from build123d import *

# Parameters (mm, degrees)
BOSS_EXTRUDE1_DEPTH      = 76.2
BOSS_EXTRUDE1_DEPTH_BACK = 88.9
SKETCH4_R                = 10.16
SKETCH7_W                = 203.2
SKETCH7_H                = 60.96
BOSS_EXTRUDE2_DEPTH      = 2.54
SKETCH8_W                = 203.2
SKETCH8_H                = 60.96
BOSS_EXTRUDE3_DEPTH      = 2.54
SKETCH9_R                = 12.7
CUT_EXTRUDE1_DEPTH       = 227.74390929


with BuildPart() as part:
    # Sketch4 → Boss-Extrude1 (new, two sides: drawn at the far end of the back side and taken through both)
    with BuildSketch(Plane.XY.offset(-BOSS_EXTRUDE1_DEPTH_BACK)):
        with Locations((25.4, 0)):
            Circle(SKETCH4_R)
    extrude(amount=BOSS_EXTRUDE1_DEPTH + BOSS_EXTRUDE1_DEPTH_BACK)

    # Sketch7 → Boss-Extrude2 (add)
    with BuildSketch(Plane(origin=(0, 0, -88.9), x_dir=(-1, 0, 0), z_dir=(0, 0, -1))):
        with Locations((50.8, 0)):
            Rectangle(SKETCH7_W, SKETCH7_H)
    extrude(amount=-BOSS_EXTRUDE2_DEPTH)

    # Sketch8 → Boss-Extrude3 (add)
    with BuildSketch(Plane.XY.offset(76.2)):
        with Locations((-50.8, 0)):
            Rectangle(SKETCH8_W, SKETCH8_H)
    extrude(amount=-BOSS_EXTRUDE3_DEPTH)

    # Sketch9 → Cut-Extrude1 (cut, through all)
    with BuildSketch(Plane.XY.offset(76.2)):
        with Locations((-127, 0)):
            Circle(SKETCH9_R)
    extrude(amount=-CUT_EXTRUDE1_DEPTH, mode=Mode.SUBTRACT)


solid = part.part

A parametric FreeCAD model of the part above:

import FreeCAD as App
import Part
import Sketcher
from FreeCAD import Vector
Q = App.Units.Quantity


def add_polygon(sketch, points):
    """Adds a closed chain of lines whose ends are joined by coincident constraints."""
    first, n = sketch.GeometryCount, len(points)
    for a, b in zip(points, points[1:] + points[:1]):
        sketch.addGeometry(Part.LineSegment(App.Vector(*a, 0), App.Vector(*b, 0)), False)
    for i in range(n):
        sketch.addConstraint(Sketcher.Constraint("Coincident", first + i, 2, first + (i + 1) % n, 1))

doc = App.newDocument("Part")
params = doc.addObject("Spreadsheet::Sheet", "Params")
for row, (alias, value) in enumerate([
    ("sketch1_diameter", "0.8 in"),
    ("pad1_length", "3 in"),
    ("pad1_length2", "3.5 in"),
    ("sketch2_width", "8 in"),
    ("sketch2_height", "2.4 in"),
    ("pad2_length", "0.1 in"),
    ("sketch3_width", "8 in"),
    ("sketch3_height", "2.4 in"),
    ("pad3_length", "0.1 in"),
    ("sketch4_diameter", "1 in"),
], start=1):
    params.set(f"A{row}", alias)
    params.set(f"B{row}", "=" + value)
    params.setAlias(f"B{row}", alias)

body = doc.addObject("PartDesign::Body", "Body")

sketch1 = body.newObject("Sketcher::SketchObject", "Sketch")
sketch1.AttachmentSupport = (doc.getObject("XY_Plane"), [""])
sketch1.MapMode = "FlatFace"
sketch1.addGeometry(Part.Circle(Vector(25, 0, 0), Vector(0, 0, 1), 10), False)
sketch1.addConstraint(Sketcher.Constraint("PointOnObject", 0, 3, -1))
sketch1.addConstraint(Sketcher.Constraint("Diameter", 0, Q("0.8 in")))
sketch1.addConstraint(Sketcher.Constraint("DistanceX", -1, 1, 0, 3, Q("1 in")))
sketch1.setExpression("Constraints[1]", "Params.sketch1_diameter")
pad1 = body.newObject("PartDesign::Pad", "Pad")
pad1.Profile = sketch1
pad1.Type = "TwoLengths"
pad1.setExpression("Length", "Params.pad1_length")
pad1.setExpression("Length2", "Params.pad1_length2")

sketch2 = body.newObject("Sketcher::SketchObject", "Sketch001")
sketch2.AttachmentSupport = (doc.getObject("XY_Plane"), [""])
sketch2.MapMode = "FlatFace"
sketch2.AttachmentOffset = App.Placement(Vector(0, 0, -3.5 * 25.4), App.Rotation())
add_polygon(sketch2, [(51, 30), (51, -30), (-152, -30), (-152, 30)])
sketch2.addConstraint(Sketcher.Constraint("Vertical", 0))
sketch2.addConstraint(Sketcher.Constraint("Horizontal", 1))
sketch2.addConstraint(Sketcher.Constraint("Vertical", 2))
sketch2.addConstraint(Sketcher.Constraint("Horizontal", 3))
sketch2.addConstraint(Sketcher.Constraint("DistanceX", 1, 2, 1, 1, Q("8 in")))
sketch2.addConstraint(Sketcher.Constraint("DistanceY", 0, 2, 0, 1, Q("2.4 in")))
sketch2.addConstraint(Sketcher.Constraint("DistanceX", -1, 1, 0, 2, Q("2 in")))
sketch2.addConstraint(Sketcher.Constraint("DistanceY", 0, 2, -1, 1, Q("1.2 in")))
sketch2.setExpression("Constraints[8]", "Params.sketch2_width")
sketch2.setExpression("Constraints[9]", "Params.sketch2_height")
pad2 = body.newObject("PartDesign::Pad", "Pad001")
pad2.Profile = sketch2
pad2.setExpression("Length", "Params.pad2_length")

sketch3 = body.newObject("Sketcher::SketchObject", "Sketch002")
sketch3.AttachmentSupport = (doc.getObject("XY_Plane"), [""])
sketch3.MapMode = "FlatFace"
sketch3.AttachmentOffset = App.Placement(Vector(0, 0, 3 * 25.4), App.Rotation())
add_polygon(sketch3, [(-152, 30), (-152, -30), (51, -30), (51, 30)])
sketch3.addConstraint(Sketcher.Constraint("Vertical", 0))
sketch3.addConstraint(Sketcher.Constraint("Horizontal", 1))
sketch3.addConstraint(Sketcher.Constraint("Vertical", 2))
sketch3.addConstraint(Sketcher.Constraint("Horizontal", 3))
sketch3.addConstraint(Sketcher.Constraint("DistanceX", 1, 1, 1, 2, Q("8 in")))
sketch3.addConstraint(Sketcher.Constraint("DistanceY", 0, 2, 0, 1, Q("2.4 in")))
sketch3.addConstraint(Sketcher.Constraint("DistanceX", 0, 2, -1, 1, Q("6 in")))
sketch3.addConstraint(Sketcher.Constraint("DistanceY", 0, 2, -1, 1, Q("1.2 in")))
sketch3.setExpression("Constraints[8]", "Params.sketch3_width")
sketch3.setExpression("Constraints[9]", "Params.sketch3_height")
pad3 = body.newObject("PartDesign::Pad", "Pad002")
pad3.Profile = sketch3
pad3.setExpression("Length", "Params.pad3_length")
pad3.Reversed = True

sketch4 = body.newObject("Sketcher::SketchObject", "Sketch003")
sketch4.AttachmentSupport = (doc.getObject("XY_Plane"), [""])
sketch4.MapMode = "FlatFace"
sketch4.AttachmentOffset = App.Placement(Vector(0, 0, 3 * 25.4), App.Rotation())
sketch4.addGeometry(Part.Circle(Vector(-127, 0, 0), Vector(0, 0, 1), 13), False)
sketch4.addConstraint(Sketcher.Constraint("PointOnObject", 0, 3, -1))
sketch4.addConstraint(Sketcher.Constraint("Diameter", 0, Q("1 in")))
sketch4.addConstraint(Sketcher.Constraint("DistanceX", 0, 3, -1, 1, Q("5 in")))
sketch4.setExpression("Constraints[1]", "Params.sketch4_diameter")
pocket1 = body.newObject("PartDesign::Pocket", "Pocket")
pocket1.Profile = sketch4
pocket1.Type = "ThroughAll"

doc.recompute()
